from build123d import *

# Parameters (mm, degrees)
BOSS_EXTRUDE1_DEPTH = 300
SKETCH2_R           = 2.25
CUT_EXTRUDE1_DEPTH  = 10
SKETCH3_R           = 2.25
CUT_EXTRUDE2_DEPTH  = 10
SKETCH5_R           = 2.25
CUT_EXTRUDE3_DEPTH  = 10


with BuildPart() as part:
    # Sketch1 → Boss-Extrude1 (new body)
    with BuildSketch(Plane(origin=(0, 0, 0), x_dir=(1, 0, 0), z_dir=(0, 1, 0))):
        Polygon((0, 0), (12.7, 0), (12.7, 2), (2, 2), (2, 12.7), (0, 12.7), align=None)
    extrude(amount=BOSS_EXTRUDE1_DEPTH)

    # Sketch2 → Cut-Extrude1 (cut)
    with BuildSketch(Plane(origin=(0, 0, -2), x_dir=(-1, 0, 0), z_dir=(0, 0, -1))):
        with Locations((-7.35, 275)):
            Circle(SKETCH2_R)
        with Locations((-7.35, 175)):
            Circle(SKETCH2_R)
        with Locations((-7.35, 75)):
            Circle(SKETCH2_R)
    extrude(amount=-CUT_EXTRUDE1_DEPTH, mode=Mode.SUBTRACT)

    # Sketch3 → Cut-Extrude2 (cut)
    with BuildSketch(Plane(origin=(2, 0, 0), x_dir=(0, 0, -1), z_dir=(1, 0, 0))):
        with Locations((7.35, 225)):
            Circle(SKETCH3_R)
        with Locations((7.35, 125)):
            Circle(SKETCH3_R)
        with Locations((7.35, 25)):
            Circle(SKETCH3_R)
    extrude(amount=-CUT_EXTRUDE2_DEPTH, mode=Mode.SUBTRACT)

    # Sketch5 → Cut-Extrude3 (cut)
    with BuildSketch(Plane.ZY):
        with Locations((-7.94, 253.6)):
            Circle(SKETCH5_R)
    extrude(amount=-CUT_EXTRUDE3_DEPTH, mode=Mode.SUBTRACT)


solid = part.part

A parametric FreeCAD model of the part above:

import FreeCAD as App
import Part
import Sketcher

V = App.Vector

doc = App.newDocument("Part")
body = doc.addObject("PartDesign::Body", "Body")

# Sketch on XZ plane
sketch1 = body.newObject("Sketcher::SketchObject", "Sketch")
sketch1.AttachmentSupport = (doc.getObject("XZ_Plane"), [""])
sketch1.MapMode = "FlatFace"
sketch1.addGeometry([
    Part.LineSegment(V(0, 0, 0), V(12.7, 0, 0)),  # 0
    Part.LineSegment(V(12.7, 0, 0), V(12.7, -2, 0)),  # 1
    Part.LineSegment(V(12.7, -2, 0), V(2, -2, 0)),  # 2
    Part.LineSegment(V(2, -2, 0), V(2, -12.7, 0)),  # 3
    Part.LineSegment(V(2, -12.7, 0), V(0, -12.7, 0)),  # 4
    Part.LineSegment(V(0, -12.7, 0), V(0, 0, 0)),  # 5
], False)
sketch1.addConstraint([
    Sketcher.Constraint("Coincident", 0, 2, 1, 1),
    Sketcher.Constraint("Coincident", 1, 2, 2, 1),
    Sketcher.Constraint("Coincident", 2, 2, 3, 1),
    Sketcher.Constraint("Coincident", 3, 2, 4, 1),
    Sketcher.Constraint("Coincident", 4, 2, 5, 1),
    Sketcher.Constraint("Coincident", 5, 2, 0, 1),
    Sketcher.Constraint("Horizontal", 0),
    Sketcher.Constraint("Vertical", 1),
    Sketcher.Constraint("Horizontal", 2),
    Sketcher.Constraint("Vertical", 3),
    Sketcher.Constraint("Horizontal", 4),
    Sketcher.Constraint("Vertical", 5),
    Sketcher.Constraint("Coincident", 5, 2, -1, 1),
    Sketcher.Constraint("Equal", 4, 1),
    Sketcher.Constraint("Equal", 2, 3),
    Sketcher.Constraint("DistanceX", 4, 2, 4, 1, 2.0),
    Sketcher.Constraint("DistanceX", 0, 1, 0, 2, 12.7),
])
pad1 = body.newObject("PartDesign::Pad", "Pad")
pad1.Profile = sketch1
pad1.Length = 300
pad1.Reversed = True

# Sketch on XY plane
sketch2 = body.newObject("Sketcher::SketchObject", "Sketch001")
sketch2.AttachmentSupport = (doc.getObject("XY_Plane"), [""])
sketch2.MapMode = "FlatFace"
sketch2.AttachmentOffset = App.Placement(V(0, 0, -2), App.Rotation())
sketch2.addGeometry([
    Part.Circle(V(7.3, 275, 0), V(0, 0, 1), 2.2),
    Part.Circle(V(7.3, 175, 0), V(0, 0, 1), 2.2),
    Part.Circle(V(7.3, 75, 0), V(0, 0, 1), 2.2),
], False)
sketch2.addConstraint([
    Sketcher.Constraint("Equal", 0, 1),
    Sketcher.Constraint("Equal", 1, 2),
    Sketcher.Constraint("Vertical", 0, 3, 1, 3),
    Sketcher.Constraint("Vertical", 1, 3, 2, 3),
    Sketcher.Constraint("Diameter", 0, 4.5),
    Sketcher.Constraint("DistanceY", -1, 1, 0, 3, 275.0),
    Sketcher.Constraint("DistanceY", -1, 1, 1, 3, 175.0),
    Sketcher.Constraint("DistanceY", -1, 1, 2, 3, 75.0),
    Sketcher.Constraint("DistanceX", -1, 1, 0, 3, 7.35),
])
pocket1 = body.newObject("PartDesign::Pocket", "Pocket")
pocket1.Profile = sketch2
pocket1.Length = 10
pocket1.Reversed = True

# Sketch on YZ plane
sketch3 = body.newObject("Sketcher::SketchObject", "Sketch002")
sketch3.AttachmentSupport = (doc.getObject("YZ_Plane"), [""])
sketch3.MapMode = "FlatFace"
sketch3.AttachmentOffset = App.Placement(V(0, 0, 2), App.Rotation())
sketch3.addGeometry([
    Part.Circle(V(225, -7.3, 0), V(0, 0, 1), 2.2),
    Part.Circle(V(125, -7.3, 0), V(0, 0, 1), 2.2),
    Part.Circle(V(25, -7.3, 0), V(0, 0, 1), 2.2),
], False)
sketch3.addConstraint([
    Sketcher.Constraint("Equal", 0, 1),
    Sketcher.Constraint("Equal", 1, 2),
    Sketcher.Constraint("Horizontal", 0, 3, 1, 3),
    Sketcher.Constraint("Horizontal", 1, 3, 2, 3),
    Sketcher.Constraint("Diameter", 0, 4.5),
    Sketcher.Constraint("DistanceX", -1, 1, 0, 3, 225.0),
    Sketcher.Constraint("DistanceX", -1, 1, 1, 3, 125.0),
    Sketcher.Constraint("DistanceX", -1, 1, 2, 3, 25.0),
    Sketcher.Constraint("DistanceY", 0, 3, -1, 1, 7.35),
])
pocket2 = body.newObject("PartDesign::Pocket", "Pocket001")
pocket2.Profile = sketch3
pocket2.Length = 10

# Sketch on YZ plane
sketch4 = body.newObject("Sketcher::SketchObject", "Sketch003")
sketch4.AttachmentSupport = (doc.getObject("YZ_Plane"), [""])
sketch4.MapMode = "FlatFace"
sketch4.addGeometry(Part.Circle(V(253.6, -7.9, 0), V(0, 0, 1), 2.2), False)
sketch4.addConstraint([
    Sketcher.Constraint("Diameter", 0, 4.5),
    Sketcher.Constraint("DistanceX", -1, 1, 0, 3, 253.6),
    Sketcher.Constraint("DistanceY", 0, 3, -1, 1, 7.94),
])
pocket3 = body.newObject("PartDesign::Pocket", "Pocket002")
pocket3.Profile = sketch4
pocket3.Length = 10
pocket3.Reversed = True

doc.recompute()
